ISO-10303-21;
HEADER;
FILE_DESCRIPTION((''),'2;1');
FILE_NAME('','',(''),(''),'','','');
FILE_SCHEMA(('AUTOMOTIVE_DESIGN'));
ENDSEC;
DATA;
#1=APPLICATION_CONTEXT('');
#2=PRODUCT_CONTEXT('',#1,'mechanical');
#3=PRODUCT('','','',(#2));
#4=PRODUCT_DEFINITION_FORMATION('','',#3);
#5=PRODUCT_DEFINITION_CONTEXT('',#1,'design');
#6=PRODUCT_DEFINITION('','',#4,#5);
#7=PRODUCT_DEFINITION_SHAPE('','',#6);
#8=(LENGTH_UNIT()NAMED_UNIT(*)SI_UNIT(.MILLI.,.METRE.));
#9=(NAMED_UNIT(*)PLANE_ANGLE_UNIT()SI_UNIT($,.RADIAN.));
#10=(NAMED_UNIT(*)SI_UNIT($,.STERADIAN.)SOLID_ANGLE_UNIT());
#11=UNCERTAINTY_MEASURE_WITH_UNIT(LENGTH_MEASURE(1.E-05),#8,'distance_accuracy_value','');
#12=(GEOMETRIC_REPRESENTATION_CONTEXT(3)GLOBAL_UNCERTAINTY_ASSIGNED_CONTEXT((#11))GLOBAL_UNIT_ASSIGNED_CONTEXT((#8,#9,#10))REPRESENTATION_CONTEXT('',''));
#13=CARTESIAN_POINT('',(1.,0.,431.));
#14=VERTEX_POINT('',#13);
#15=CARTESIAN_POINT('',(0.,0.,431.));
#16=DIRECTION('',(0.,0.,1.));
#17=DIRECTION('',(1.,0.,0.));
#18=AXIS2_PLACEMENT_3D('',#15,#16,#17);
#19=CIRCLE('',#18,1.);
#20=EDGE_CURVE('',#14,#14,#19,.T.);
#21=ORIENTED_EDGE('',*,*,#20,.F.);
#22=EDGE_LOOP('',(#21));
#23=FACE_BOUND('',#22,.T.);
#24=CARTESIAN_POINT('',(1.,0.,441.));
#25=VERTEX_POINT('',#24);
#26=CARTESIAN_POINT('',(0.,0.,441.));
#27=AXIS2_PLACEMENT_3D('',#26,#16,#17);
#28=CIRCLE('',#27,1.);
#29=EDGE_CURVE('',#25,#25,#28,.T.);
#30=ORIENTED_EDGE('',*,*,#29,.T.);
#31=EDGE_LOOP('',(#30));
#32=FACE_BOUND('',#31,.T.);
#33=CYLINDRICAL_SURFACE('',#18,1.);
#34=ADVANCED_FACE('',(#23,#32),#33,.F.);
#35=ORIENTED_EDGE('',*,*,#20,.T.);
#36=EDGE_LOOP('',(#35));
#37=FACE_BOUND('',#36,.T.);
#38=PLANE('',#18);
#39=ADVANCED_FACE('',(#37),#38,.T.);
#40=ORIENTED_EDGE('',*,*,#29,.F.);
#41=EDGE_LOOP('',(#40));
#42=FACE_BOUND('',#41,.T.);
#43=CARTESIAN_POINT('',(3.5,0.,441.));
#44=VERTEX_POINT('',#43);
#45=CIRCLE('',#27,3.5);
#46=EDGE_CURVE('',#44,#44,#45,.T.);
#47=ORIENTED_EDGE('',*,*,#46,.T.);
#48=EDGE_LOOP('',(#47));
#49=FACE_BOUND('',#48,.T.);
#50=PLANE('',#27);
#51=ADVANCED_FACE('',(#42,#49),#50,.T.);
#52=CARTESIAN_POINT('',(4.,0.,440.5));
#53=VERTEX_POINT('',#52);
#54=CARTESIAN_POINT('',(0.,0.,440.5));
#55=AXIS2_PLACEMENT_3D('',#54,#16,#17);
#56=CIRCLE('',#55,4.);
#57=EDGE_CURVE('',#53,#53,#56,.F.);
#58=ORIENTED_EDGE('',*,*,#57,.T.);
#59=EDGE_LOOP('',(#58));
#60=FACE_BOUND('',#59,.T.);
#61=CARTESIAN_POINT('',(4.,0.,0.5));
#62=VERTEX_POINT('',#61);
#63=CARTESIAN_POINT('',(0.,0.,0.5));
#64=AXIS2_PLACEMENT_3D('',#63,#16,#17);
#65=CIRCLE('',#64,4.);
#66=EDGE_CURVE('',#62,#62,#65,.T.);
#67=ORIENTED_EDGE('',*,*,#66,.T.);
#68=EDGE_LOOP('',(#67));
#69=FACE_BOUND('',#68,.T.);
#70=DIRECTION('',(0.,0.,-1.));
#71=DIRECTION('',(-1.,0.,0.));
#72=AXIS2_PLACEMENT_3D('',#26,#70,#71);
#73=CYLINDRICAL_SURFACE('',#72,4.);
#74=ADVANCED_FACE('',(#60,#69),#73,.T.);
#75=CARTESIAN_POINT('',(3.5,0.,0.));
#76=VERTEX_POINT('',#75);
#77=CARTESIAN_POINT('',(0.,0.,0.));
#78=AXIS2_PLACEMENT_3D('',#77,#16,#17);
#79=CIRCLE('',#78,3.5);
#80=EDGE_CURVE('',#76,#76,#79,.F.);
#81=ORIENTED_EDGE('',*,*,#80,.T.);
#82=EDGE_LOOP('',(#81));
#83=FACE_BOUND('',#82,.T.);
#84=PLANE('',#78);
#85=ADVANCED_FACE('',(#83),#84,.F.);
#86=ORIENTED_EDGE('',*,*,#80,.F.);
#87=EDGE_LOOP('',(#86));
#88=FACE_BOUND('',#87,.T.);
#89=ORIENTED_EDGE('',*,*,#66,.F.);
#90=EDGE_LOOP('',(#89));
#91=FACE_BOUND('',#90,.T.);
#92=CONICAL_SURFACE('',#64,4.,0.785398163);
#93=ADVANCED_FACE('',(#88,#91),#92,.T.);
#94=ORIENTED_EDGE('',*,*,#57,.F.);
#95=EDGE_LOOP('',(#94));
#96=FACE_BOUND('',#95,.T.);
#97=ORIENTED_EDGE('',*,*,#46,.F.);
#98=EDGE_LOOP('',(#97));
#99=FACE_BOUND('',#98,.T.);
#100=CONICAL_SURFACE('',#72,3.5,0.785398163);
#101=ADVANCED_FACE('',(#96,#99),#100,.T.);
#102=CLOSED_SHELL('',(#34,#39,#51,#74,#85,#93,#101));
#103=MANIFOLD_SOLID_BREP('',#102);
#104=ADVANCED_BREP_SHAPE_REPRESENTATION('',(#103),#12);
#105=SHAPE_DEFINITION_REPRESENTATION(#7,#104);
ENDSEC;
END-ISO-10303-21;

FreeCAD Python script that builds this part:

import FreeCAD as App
import Part
import Sketcher

V = App.Vector


def edges_at(feature, points):
    """Names of the edges that pass closest to the given points."""
    edges = feature.Shape.Edges
    near = lambda p: min(range(len(edges)), key=lambda i: edges[i].distToShape(Part.Vertex(*p))[0])
    return sorted({f"Edge{near(p) + 1}" for p in points})

doc = App.newDocument("Part")
body = doc.addObject("PartDesign::Body", "Body")

# Sketch on XY plane
sketch1 = body.newObject("Sketcher::SketchObject", "Sketch")
sketch1.AttachmentSupport = (doc.getObject("XY_Plane"), [""])
sketch1.MapMode = "FlatFace"
sketch1.addGeometry(Part.Circle(V(0, 0, 0), V(0, 0, 1), 4), False)
sketch1.addConstraint(Sketcher.Constraint("Coincident", 0, 3, -1, 1))
sketch1.addConstraint(Sketcher.Constraint("Diameter", 0, 8.0))
pad1 = body.newObject("PartDesign::Pad", "Pad")
pad1.Profile = sketch1
pad1.Length = 441

# Sketch on XY plane
sketch2 = body.newObject("Sketcher::SketchObject", "Sketch001")
sketch2.AttachmentSupport = (doc.getObject("XY_Plane"), [""])
sketch2.MapMode = "FlatFace"
sketch2.AttachmentOffset = App.Placement(V(0, 0, 441), App.Rotation())
sketch2.addGeometry(Part.Circle(V(0, 0, 0), V(0, 0, 1), 1), False)
sketch2.addConstraint(Sketcher.Constraint("Coincident", 0, 3, -1, 1))
sketch2.addConstraint(Sketcher.Constraint("Diameter", 0, 2.0))
pocket1 = body.newObject("PartDesign::Pocket", "Pocket")
pocket1.Profile = sketch2
pocket1.Length = 10
doc.recompute()

chamfer = body.newObject("PartDesign::Chamfer", "Chamfer")
chamfer.Base = (pocket1, edges_at(pocket1, [(-4, 0, 0), (-4, 0, 441)]))
chamfer.Size = 0.5

doc.recompute()
